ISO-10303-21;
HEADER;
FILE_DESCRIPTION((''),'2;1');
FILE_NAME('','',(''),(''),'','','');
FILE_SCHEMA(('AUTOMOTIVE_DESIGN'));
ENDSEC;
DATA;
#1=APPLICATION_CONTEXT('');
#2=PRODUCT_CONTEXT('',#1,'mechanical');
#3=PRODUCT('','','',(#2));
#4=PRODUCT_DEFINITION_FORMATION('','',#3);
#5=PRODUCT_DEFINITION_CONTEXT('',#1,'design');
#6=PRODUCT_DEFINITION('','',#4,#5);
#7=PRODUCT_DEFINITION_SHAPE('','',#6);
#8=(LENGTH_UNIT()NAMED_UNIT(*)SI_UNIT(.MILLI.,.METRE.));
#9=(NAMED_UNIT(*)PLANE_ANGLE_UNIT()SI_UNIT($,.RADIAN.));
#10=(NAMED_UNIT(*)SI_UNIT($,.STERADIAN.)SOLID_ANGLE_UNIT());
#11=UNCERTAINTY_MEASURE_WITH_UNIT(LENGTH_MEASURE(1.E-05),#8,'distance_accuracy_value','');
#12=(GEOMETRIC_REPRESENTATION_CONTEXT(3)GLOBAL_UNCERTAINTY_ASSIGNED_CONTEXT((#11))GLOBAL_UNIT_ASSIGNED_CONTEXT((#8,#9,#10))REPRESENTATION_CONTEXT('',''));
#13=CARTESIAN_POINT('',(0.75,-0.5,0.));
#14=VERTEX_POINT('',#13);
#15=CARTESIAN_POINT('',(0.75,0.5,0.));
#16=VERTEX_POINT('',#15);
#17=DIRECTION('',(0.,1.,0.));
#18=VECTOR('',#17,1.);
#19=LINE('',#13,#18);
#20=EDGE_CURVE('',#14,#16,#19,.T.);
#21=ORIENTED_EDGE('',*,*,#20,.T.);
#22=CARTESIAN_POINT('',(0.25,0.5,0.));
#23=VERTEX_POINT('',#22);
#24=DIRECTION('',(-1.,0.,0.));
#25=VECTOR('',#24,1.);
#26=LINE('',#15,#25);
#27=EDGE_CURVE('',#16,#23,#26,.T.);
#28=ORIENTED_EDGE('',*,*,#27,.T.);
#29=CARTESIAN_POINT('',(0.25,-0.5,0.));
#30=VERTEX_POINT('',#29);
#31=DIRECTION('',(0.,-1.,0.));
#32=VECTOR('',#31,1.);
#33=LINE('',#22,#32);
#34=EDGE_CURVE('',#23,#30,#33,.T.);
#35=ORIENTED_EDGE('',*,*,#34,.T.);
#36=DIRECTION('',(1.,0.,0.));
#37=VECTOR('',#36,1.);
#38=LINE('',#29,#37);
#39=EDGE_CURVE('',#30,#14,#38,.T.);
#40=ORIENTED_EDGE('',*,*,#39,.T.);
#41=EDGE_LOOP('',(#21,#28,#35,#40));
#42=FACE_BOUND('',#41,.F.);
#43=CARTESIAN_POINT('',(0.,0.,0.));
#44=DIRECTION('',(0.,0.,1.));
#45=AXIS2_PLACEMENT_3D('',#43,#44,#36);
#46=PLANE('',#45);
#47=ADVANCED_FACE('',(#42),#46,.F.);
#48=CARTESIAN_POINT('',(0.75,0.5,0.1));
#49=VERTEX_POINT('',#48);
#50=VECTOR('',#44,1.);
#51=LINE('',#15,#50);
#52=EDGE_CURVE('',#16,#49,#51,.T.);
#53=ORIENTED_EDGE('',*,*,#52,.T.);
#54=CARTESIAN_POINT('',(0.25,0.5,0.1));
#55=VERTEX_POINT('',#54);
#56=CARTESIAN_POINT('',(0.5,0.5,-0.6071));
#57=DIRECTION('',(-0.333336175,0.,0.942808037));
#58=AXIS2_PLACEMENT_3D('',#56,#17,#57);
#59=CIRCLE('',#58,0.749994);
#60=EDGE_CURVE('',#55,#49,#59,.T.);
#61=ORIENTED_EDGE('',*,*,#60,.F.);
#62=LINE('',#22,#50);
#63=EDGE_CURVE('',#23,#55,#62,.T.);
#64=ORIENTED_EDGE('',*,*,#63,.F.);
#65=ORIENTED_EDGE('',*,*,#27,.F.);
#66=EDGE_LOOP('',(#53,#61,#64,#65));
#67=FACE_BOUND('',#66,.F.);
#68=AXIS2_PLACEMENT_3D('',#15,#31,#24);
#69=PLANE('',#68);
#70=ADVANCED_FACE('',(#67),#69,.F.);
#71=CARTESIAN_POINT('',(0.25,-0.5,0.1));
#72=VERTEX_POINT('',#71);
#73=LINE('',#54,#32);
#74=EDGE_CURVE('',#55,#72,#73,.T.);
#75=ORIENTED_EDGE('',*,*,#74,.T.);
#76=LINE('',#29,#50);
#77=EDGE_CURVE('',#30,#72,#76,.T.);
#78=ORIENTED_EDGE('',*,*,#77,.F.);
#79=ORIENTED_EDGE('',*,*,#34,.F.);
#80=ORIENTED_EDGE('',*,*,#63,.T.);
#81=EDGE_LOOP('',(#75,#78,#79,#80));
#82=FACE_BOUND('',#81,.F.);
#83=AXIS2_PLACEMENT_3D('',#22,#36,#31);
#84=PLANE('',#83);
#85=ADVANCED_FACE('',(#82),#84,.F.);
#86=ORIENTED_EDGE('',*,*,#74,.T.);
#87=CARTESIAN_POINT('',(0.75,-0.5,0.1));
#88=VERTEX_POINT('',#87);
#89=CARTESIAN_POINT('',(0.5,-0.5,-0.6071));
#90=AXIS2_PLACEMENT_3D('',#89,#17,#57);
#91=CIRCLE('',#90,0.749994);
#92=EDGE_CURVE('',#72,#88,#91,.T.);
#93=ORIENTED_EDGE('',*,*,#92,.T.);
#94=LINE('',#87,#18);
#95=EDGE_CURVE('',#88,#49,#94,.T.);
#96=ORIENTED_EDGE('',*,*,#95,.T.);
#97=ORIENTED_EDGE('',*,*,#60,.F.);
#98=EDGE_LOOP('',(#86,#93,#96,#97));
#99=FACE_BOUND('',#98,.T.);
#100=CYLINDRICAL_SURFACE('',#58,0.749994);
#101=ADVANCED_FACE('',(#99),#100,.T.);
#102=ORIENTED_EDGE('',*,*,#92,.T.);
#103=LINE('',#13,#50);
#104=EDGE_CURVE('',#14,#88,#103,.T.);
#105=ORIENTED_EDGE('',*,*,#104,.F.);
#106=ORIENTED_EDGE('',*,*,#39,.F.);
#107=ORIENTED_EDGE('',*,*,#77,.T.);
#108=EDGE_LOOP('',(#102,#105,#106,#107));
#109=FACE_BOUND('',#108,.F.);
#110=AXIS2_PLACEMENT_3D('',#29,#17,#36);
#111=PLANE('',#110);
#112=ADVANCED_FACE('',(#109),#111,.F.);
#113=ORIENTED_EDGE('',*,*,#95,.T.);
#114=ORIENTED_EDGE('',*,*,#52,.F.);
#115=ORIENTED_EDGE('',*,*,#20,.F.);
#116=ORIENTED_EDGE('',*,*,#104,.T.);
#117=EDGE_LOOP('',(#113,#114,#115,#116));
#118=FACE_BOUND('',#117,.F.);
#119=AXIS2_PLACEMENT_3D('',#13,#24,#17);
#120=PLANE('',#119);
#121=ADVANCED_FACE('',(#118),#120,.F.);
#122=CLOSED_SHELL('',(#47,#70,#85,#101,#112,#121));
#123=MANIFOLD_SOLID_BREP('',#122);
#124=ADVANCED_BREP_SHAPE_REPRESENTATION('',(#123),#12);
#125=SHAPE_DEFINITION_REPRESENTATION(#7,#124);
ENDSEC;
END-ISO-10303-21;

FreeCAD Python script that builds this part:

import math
import FreeCAD as App
import Part
import Sketcher
Q = App.Units.Quantity

doc = App.newDocument("Part")
body = doc.addObject("PartDesign::Body", "Body")

# Sketch on XY plane
sketch1 = doc.addObject("Sketcher::SketchObject", "Sketch")
body.addObject(sketch1)
sketch1.AttachmentSupport = (doc.XY_Plane, [""])
sketch1.MapMode = "FlatFace"
sketch1.addGeometry([
    Part.LineSegment(App.Vector(0.2, 0.5, 0), App.Vector(0.2, -0.5, 0)),
    Part.LineSegment(App.Vector(0.2, -0.5, 0), App.Vector(0.8, -0.5, 0)),
    Part.LineSegment(App.Vector(0.8, -0.5, 0), App.Vector(0.8, 0.5, 0)),
    Part.LineSegment(App.Vector(0.8, 0.5, 0), App.Vector(0.2, 0.5, 0)),
], False)
sketch1.addConstraint([
    Sketcher.Constraint("Coincident", 0, 2, 1, 1),
    Sketcher.Constraint("Coincident", 1, 2, 2, 1),
    Sketcher.Constraint("Coincident", 2, 2, 3, 1),
    Sketcher.Constraint("Coincident", 3, 2, 0, 1),
    Sketcher.Constraint("Vertical", 0),
    Sketcher.Constraint("Horizontal", 1),
    Sketcher.Constraint("Vertical", 2),
    Sketcher.Constraint("Horizontal", 3),
    Sketcher.Constraint("DistanceY", 0, 2, 0, 1, Q("1 mm")),
    Sketcher.Constraint("DistanceX", 1, 1, 1, 2, Q("0.5 mm")),
    Sketcher.Constraint("DistanceY", 0, 2, -1, 1, Q("0.5 mm")),
    Sketcher.Constraint("DistanceX", -1, 1, 0, 2, Q("0.25 mm")),
])
pad1 = doc.addObject("PartDesign::Pad", "Pad")
body.addObject(pad1)
pad1.Profile = sketch1
pad1.Length = 0.1

# Sketch on XZ plane
sketch2 = doc.addObject("Sketcher::SketchObject", "Sketch001")
body.addObject(sketch2)
sketch2.AttachmentSupport = (doc.XZ_Plane, [""])
sketch2.MapMode = "FlatFace"
sketch2.AttachmentOffset = App.Placement(App.Vector(0, 0, -0.5), App.Rotation())
sketch2.addGeometry([
    Part.ArcOfCircle(Part.Circle(App.Vector(0.5, -0.6, 0), App.Vector(0, 0, 1), 0.7), math.radians(71), math.radians(109)),
    Part.LineSegment(App.Vector(0.8, 0.1, 0), App.Vector(0.2, 0.1, 0)),
], False)
sketch2.addConstraint([
    Sketcher.Constraint("Coincident", 0, 1, 1, 1),
    Sketcher.Constraint("Coincident", 1, 2, 0, 2),
    Sketcher.Constraint("Horizontal", 1),
    Sketcher.Constraint("Radius", 0, Q("0.75 mm")),
    Sketcher.Constraint("DistanceX", -1, 1, 0, 1, Q("0.75 mm")),
    Sketcher.Constraint("DistanceX", 1, 2, 1, 1, Q("0.5 mm")),
    Sketcher.Constraint("DistanceY", -1, 1, 0, 1, Q("0.1 mm")),
])
pad2 = doc.addObject("PartDesign::Pad", "Pad001")
body.addObject(pad2)
pad2.Profile = sketch2
pad2.Length = 1

doc.recompute()
